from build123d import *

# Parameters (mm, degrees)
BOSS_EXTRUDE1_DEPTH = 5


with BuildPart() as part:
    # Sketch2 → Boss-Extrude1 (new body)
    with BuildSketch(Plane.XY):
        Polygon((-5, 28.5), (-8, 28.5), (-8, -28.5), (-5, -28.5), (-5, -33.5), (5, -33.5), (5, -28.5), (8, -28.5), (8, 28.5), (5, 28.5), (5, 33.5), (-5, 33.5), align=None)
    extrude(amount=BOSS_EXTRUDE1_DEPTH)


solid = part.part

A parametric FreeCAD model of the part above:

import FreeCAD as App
import Part
import Sketcher
Q = App.Units.Quantity

doc = App.newDocument("Part")
body = doc.addObject("PartDesign::Body", "Body")

# Sketch on XY plane
sketch1 = body.newObject("Sketcher::SketchObject", "Sketch")
sketch1.AttachmentSupport = (doc.getObject("XY_Plane"), [""])
sketch1.MapMode = "FlatFace"
sketch1.addGeometry(Part.LineSegment(App.Vector(-5, 28.5, 0), App.Vector(-8, 28.5, 0)), False)
sketch1.addGeometry(Part.LineSegment(App.Vector(-8, 28.5, 0), App.Vector(-8, -28.5, 0)), False)
sketch1.addGeometry(Part.LineSegment(App.Vector(-8, -28.5, 0), App.Vector(-5, -28.5, 0)), False)
sketch1.addGeometry(Part.LineSegment(App.Vector(-5, -28.5, 0), App.Vector(-5, -33.5, 0)), False)
sketch1.addGeometry(Part.LineSegment(App.Vector(-5, -33.5, 0), App.Vector(5, -33.5, 0)), False)
sketch1.addGeometry(Part.LineSegment(App.Vector(5, -33.5, 0), App.Vector(5, -28.5, 0)), False)
sketch1.addGeometry(Part.LineSegment(App.Vector(5, -28.5, 0), App.Vector(8, -28.5, 0)), False)
sketch1.addGeometry(Part.LineSegment(App.Vector(8, -28.5, 0), App.Vector(8, 28.5, 0)), False)
sketch1.addGeometry(Part.LineSegment(App.Vector(8, 28.5, 0), App.Vector(5, 28.5, 0)), False)
sketch1.addGeometry(Part.LineSegment(App.Vector(5, 28.5, 0), App.Vector(5, 33.5, 0)), False)
sketch1.addGeometry(Part.LineSegment(App.Vector(5, 33.5, 0), App.Vector(-5, 33.5, 0)), False)
sketch1.addGeometry(Part.LineSegment(App.Vector(-5, 33.5, 0), App.Vector(-5, 28.5, 0)), False)
sketch1.addConstraint(Sketcher.Constraint("Coincident", 0, 2, 1, 1))
sketch1.addConstraint(Sketcher.Constraint("Coincident", 1, 2, 2, 1))
sketch1.addConstraint(Sketcher.Constraint("Coincident", 2, 2, 3, 1))
sketch1.addConstraint(Sketcher.Constraint("Coincident", 3, 2, 4, 1))
sketch1.addConstraint(Sketcher.Constraint("Coincident", 4, 2, 5, 1))
sketch1.addConstraint(Sketcher.Constraint("Coincident", 5, 2, 6, 1))
sketch1.addConstraint(Sketcher.Constraint("Coincident", 6, 2, 7, 1))
sketch1.addConstraint(Sketcher.Constraint("Coincident", 7, 2, 8, 1))
sketch1.addConstraint(Sketcher.Constraint("Coincident", 8, 2, 9, 1))
sketch1.addConstraint(Sketcher.Constraint("Coincident", 9, 2, 10, 1))
sketch1.addConstraint(Sketcher.Constraint("Coincident", 10, 2, 11, 1))
sketch1.addConstraint(Sketcher.Constraint("Coincident", 11, 2, 0, 1))
sketch1.addConstraint(Sketcher.Constraint("Horizontal", 0))
sketch1.addConstraint(Sketcher.Constraint("Vertical", 1))
sketch1.addConstraint(Sketcher.Constraint("Horizontal", 2))
sketch1.addConstraint(Sketcher.Constraint("Vertical", 3))
sketch1.addConstraint(Sketcher.Constraint("Horizontal", 4))
sketch1.addConstraint(Sketcher.Constraint("Vertical", 5))
sketch1.addConstraint(Sketcher.Constraint("Horizontal", 6))
sketch1.addConstraint(Sketcher.Constraint("Vertical", 7))
sketch1.addConstraint(Sketcher.Constraint("Horizontal", 8))
sketch1.addConstraint(Sketcher.Constraint("Vertical", 9))
sketch1.addConstraint(Sketcher.Constraint("Horizontal", 10))
sketch1.addConstraint(Sketcher.Constraint("Vertical", 11))
sketch1.addConstraint(Sketcher.Constraint("Symmetric", 0, 2, 6, 2, -1, 1))
sketch1.addConstraint(Sketcher.Constraint("Symmetric", 2, 2, 8, 2, -1, 1))
sketch1.addConstraint(Sketcher.Constraint("Symmetric", 4, 2, 10, 2, -1, 1))
sketch1.addConstraint(Sketcher.Constraint("Symmetric", 2, 2, 5, 2, -2))
sketch1.addConstraint(Sketcher.Constraint("DistanceX", 0, 2, 0, 1, Q("3 mm")))
sketch1.addConstraint(Sketcher.Constraint("DistanceX", 4, 1, 4, 2, Q("10 mm")))
sketch1.addConstraint(Sketcher.Constraint("DistanceY", 1, 2, 1, 1, Q("57 mm")))
sketch1.addConstraint(Sketcher.Constraint("DistanceY", 3, 2, 3, 1, Q("5 mm")))
pad1 = body.newObject("PartDesign::Pad", "Pad")
pad1.Profile = sketch1
pad1.Length = 5

doc.recompute()
